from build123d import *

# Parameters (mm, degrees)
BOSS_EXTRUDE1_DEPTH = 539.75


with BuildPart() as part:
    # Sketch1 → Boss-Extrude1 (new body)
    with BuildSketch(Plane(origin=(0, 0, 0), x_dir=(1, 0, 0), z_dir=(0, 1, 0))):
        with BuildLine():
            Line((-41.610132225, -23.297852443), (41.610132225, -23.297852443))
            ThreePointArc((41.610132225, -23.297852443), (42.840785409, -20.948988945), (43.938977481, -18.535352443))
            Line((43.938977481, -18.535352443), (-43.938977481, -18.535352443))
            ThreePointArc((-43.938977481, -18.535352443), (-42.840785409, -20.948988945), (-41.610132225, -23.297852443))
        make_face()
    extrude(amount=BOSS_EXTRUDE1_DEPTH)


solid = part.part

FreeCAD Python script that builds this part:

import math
import FreeCAD as App
import Part
import Sketcher
Q = App.Units.Quantity

doc = App.newDocument("Part")
body = doc.addObject("PartDesign::Body", "Body")

# Sketch on XZ plane
sketch1 = body.newObject("Sketcher::SketchObject", "Sketch")
sketch1.AttachmentSupport = (doc.getObject("XZ_Plane"), [""])
sketch1.MapMode = "FlatFace"
sketch1.addGeometry(Part.LineSegment(App.Vector(-42, 23, 0), App.Vector(42, 23, 0)), False)
sketch1.addGeometry(Part.ArcOfCircle(Part.Circle(App.Vector(0, 0, 0), App.Vector(0, 0, 1), 48), math.radians(22.87), math.radians(29.24)), False)
sketch1.addGeometry(Part.LineSegment(App.Vector(44, 19, 0), App.Vector(-44, 19, 0)), False)
sketch1.addGeometry(Part.ArcOfCircle(Part.Circle(App.Vector(0, 0, 0), App.Vector(0, 0, 1), 48), math.radians(150.76), math.radians(157.13)), False)
sketch1.addConstraint(Sketcher.Constraint("Coincident", 0, 2, 1, 2))
sketch1.addConstraint(Sketcher.Constraint("Coincident", 1, 1, 2, 1))
sketch1.addConstraint(Sketcher.Constraint("Coincident", 2, 2, 3, 2))
sketch1.addConstraint(Sketcher.Constraint("Coincident", 3, 1, 0, 1))
sketch1.addConstraint(Sketcher.Constraint("Horizontal", 0))
sketch1.addConstraint(Sketcher.Constraint("Horizontal", 2))
sketch1.addConstraint(Sketcher.Constraint("Coincident", 1, 3, -1, 1))
sketch1.addConstraint(Sketcher.Constraint("Coincident", 3, 3, -1, 1))
sketch1.addConstraint(Sketcher.Constraint("Equal", 1, 3))
sketch1.addConstraint(Sketcher.Constraint("Radius", 1, Q("1.8775 in")))
sketch1.addConstraint(Sketcher.Constraint("DistanceY", 1, 1, 0, 2, Q("0.1875 in")))
sketch1.addConstraint(Sketcher.Constraint("DistanceX", 0, 1, 0, 2, 83.220264))
pad1 = body.newObject("PartDesign::Pad", "Pad")
pad1.Profile = sketch1
pad1.Length = Q("21.25 in")
pad1.Reversed = True

doc.recompute()
